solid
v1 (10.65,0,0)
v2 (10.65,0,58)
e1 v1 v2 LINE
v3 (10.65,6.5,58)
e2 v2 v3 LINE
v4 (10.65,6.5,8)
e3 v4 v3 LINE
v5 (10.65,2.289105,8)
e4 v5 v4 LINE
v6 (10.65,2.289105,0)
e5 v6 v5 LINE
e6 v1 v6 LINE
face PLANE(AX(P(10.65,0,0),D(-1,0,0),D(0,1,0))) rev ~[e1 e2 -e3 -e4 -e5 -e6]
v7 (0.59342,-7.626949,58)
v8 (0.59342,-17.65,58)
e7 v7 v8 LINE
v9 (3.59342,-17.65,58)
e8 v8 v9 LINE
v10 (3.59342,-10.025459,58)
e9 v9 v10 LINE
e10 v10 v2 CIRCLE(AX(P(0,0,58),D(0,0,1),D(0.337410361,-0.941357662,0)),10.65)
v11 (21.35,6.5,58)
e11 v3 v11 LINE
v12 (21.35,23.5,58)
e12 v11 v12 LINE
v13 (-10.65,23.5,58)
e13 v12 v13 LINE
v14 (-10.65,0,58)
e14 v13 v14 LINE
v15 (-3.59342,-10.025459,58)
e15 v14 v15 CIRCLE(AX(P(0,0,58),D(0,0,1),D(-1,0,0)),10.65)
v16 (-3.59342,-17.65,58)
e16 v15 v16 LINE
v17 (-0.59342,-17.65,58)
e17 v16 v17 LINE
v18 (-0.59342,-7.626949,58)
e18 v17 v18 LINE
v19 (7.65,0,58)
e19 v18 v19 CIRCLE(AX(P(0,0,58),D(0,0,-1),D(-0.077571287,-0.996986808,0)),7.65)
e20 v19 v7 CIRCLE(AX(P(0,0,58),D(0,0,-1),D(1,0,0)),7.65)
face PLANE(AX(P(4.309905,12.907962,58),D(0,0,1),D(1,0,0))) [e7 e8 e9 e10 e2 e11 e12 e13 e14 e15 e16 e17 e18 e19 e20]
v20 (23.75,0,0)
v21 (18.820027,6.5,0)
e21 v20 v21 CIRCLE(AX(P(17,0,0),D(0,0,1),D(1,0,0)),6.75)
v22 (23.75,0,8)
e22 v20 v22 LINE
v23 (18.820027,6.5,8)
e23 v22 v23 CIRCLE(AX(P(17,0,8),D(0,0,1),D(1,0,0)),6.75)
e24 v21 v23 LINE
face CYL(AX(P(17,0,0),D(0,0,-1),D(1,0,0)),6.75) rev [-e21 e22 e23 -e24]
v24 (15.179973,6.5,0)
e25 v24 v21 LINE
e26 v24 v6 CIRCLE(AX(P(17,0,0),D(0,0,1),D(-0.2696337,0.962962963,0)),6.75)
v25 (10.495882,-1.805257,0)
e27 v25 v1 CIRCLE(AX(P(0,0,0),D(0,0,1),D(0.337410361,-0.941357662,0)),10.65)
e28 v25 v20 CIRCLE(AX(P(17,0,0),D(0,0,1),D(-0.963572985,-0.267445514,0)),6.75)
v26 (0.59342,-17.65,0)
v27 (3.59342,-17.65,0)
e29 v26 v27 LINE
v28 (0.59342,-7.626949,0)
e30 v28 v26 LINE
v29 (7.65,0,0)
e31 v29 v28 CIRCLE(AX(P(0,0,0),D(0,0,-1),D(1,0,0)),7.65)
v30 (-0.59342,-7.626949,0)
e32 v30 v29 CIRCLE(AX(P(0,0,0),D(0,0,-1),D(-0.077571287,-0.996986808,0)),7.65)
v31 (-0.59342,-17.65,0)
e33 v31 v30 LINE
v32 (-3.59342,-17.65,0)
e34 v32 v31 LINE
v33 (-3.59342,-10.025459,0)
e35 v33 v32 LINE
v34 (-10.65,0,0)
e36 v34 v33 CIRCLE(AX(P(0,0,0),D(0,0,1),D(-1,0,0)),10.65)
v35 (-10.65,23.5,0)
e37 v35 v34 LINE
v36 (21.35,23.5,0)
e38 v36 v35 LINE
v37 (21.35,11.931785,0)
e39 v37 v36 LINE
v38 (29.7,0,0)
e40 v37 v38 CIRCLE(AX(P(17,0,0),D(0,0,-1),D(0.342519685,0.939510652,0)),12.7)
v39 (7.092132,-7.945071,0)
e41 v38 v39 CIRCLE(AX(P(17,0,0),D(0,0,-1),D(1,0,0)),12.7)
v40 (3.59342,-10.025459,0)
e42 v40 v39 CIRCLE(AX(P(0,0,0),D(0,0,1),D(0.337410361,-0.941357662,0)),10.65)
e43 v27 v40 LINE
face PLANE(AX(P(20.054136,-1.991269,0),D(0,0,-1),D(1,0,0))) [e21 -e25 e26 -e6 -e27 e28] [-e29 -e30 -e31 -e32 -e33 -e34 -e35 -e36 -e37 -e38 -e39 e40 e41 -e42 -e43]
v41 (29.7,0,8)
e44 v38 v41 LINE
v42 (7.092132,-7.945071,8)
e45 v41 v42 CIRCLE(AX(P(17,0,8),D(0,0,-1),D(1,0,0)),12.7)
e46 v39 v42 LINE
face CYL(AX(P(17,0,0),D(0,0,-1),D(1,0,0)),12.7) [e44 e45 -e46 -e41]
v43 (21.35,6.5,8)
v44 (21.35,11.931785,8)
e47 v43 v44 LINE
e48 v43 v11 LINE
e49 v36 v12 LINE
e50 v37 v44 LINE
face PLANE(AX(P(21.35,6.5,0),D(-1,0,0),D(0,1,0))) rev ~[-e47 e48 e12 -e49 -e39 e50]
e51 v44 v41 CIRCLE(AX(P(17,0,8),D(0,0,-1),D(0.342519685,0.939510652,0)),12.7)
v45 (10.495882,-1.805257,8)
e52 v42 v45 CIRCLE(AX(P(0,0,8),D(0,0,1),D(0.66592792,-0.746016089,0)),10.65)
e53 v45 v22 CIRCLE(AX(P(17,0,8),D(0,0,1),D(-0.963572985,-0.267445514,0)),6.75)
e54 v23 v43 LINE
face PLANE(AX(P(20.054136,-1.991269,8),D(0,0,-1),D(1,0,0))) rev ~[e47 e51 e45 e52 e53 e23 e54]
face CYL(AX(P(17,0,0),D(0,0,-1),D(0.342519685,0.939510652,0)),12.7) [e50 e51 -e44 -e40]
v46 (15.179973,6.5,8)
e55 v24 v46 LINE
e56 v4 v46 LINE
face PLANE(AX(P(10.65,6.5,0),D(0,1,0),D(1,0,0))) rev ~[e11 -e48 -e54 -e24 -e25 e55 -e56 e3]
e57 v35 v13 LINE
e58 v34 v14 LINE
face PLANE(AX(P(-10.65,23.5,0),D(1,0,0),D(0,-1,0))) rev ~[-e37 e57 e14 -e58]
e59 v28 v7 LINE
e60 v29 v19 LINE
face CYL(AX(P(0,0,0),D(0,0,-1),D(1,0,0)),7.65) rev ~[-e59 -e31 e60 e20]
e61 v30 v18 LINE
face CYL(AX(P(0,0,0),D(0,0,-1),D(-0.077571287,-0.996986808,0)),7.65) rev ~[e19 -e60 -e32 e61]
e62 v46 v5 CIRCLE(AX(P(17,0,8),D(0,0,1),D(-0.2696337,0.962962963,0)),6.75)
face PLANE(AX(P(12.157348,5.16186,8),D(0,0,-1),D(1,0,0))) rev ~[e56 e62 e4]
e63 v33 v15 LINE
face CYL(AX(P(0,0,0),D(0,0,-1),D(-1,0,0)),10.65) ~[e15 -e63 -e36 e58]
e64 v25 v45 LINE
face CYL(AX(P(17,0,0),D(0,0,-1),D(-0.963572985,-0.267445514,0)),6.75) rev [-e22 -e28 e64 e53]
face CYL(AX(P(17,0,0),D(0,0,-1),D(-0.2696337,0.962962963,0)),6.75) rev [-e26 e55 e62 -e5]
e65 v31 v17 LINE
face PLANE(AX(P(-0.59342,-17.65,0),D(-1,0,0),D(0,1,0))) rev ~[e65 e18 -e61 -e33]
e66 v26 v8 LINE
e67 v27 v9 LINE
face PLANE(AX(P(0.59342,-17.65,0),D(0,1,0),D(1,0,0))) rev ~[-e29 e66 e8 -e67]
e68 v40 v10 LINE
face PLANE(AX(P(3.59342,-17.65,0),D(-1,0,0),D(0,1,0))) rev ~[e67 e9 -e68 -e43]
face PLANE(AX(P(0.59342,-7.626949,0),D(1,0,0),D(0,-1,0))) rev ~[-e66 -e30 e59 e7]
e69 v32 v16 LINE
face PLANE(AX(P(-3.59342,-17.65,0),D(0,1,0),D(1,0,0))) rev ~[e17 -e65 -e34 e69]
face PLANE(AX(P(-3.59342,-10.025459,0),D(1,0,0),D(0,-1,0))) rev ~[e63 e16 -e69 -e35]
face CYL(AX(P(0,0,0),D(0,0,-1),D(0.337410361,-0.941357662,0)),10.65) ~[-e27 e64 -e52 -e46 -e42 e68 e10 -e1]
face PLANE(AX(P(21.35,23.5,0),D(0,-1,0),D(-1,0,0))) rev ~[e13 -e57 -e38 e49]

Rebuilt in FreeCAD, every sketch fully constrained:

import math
import FreeCAD as App
import Part
import Sketcher

V = App.Vector
Q = App.Units.Quantity

doc = App.newDocument("Part")
params = doc.addObject("Spreadsheet::Sheet", "Params")
for row, (alias, value) in enumerate([
    ("sketch1_width", "3 mm"),
    ("sketch1_width2", "32 mm"),
    ("sketch1_height", "17 mm"),
    ("sketch1_radius", "10.65 mm"),
    ("sketch1_radius2", "7.65 mm"),
    ("pad1_length", "58 mm"),
    ("sketch2_radius", "12.7 mm"),
    ("sketch2_radius2", "10.65 mm"),
    ("sketch2_radius3", "6.75 mm"),
    ("pad2_length", "8 mm"),
], start=1):
    params.set(f"A{row}", alias)
    params.set(f"B{row}", "=" + value)
    params.setAlias(f"B{row}", alias)

body = doc.addObject("PartDesign::Body", "Body")

sketch1 = body.newObject("Sketcher::SketchObject", "Sketch")
sketch1.AttachmentSupport = (doc.getObject("XY_Plane"), [""])
sketch1.MapMode = "FlatFace"
sketch1.addGeometry([
    Part.LineSegment(V(-10.7, 23.5, 0), V(-10.7, 0, 0)),
    Part.ArcOfCircle(Part.Circle(V(0, 0, 0), V(0, 0, 1), 10.7), math.radians(180), math.radians(250)),
    Part.LineSegment(V(-3.6, -10, 0), V(-3.6, -17.6, 0)),
    Part.LineSegment(V(-3.6, -17.6, 0), V(-0.6, -17.6, 0)),
    Part.LineSegment(V(-0.6, -17.6, 0), V(-0.6, -7.6, 0)),
    Part.ArcOfCircle(Part.Circle(V(0, 0, 0), V(0, 0, 1), 7.7), math.radians(0), math.radians(266)),
    Part.ArcOfCircle(Part.Circle(V(0, 0, 0), V(0, 0, 1), 7.7), math.radians(-86), math.radians(0)),
    Part.LineSegment(V(0.6, -7.6, 0), V(0.6, -17.6, 0)),
    Part.LineSegment(V(0.6, -17.6, 0), V(3.6, -17.6, 0)),
    Part.LineSegment(V(3.6, -17.6, 0), V(3.6, -10, 0)),
    Part.ArcOfCircle(Part.Circle(V(0, 0, 0), V(0, 0, 1), 10.7), math.radians(-70), math.radians(0)),
    Part.LineSegment(V(10.7, 0, 0), V(10.7, 6.5, 0)),
    Part.LineSegment(V(10.7, 6.5, 0), V(21.4, 6.5, 0)),
    Part.LineSegment(V(21.4, 6.5, 0), V(21.4, 23.5, 0)),
    Part.LineSegment(V(21.4, 23.5, 0), V(-10.7, 23.5, 0)),
], False)
sketch1.addConstraint([
    Sketcher.Constraint("Tangent", 0, 2, 1, 1),
    Sketcher.Constraint("Coincident", 1, 2, 2, 1),
    Sketcher.Constraint("Coincident", 2, 2, 3, 1),
    Sketcher.Constraint("Coincident", 3, 2, 4, 1),
    Sketcher.Constraint("Coincident", 4, 2, 5, 2),
    Sketcher.Constraint("Tangent", 5, 1, 6, 2),
    Sketcher.Constraint("Coincident", 6, 1, 7, 1),
    Sketcher.Constraint("Coincident", 7, 2, 8, 1),
    Sketcher.Constraint("Coincident", 8, 2, 9, 1),
    Sketcher.Constraint("Coincident", 9, 2, 10, 1),
    Sketcher.Constraint("Tangent", 10, 2, 11, 1),
    Sketcher.Constraint("Coincident", 11, 2, 12, 1),
    Sketcher.Constraint("Coincident", 12, 2, 13, 1),
    Sketcher.Constraint("Coincident", 13, 2, 14, 1),
    Sketcher.Constraint("Coincident", 14, 2, 0, 1),
    Sketcher.Constraint("Vertical", 0),
    Sketcher.Constraint("Vertical", 2),
    Sketcher.Constraint("Horizontal", 3),
    Sketcher.Constraint("Vertical", 4),
    Sketcher.Constraint("Vertical", 7),
    Sketcher.Constraint("Horizontal", 8),
    Sketcher.Constraint("Vertical", 9),
    Sketcher.Constraint("Vertical", 11),
    Sketcher.Constraint("Horizontal", 12),
    Sketcher.Constraint("Vertical", 13),
    Sketcher.Constraint("Horizontal", 14),
    Sketcher.Constraint("Coincident", 1, 3, -1, 1),
    Sketcher.Constraint("Coincident", 5, 3, -1, 1),
    Sketcher.Constraint("Coincident", 10, 3, -1, 1),
    Sketcher.Constraint("Equal", 5, 6),
    Sketcher.Constraint("Equal", 1, 10),
    Sketcher.Constraint("Symmetric", 3, 2, 7, 2, -2),
    Sketcher.Constraint("PointOnObject", 5, 1, -1),
    Sketcher.Constraint("Horizontal", 1, 2, 9, 2),
    Sketcher.Constraint("DistanceX", 3, 1, 3, 2, Q("3 mm")),
    Sketcher.Constraint("DistanceX", 14, 2, 14, 1, Q("32 mm")),
    Sketcher.Constraint("DistanceY", 13, 1, 13, 2, Q("17 mm")),
    Sketcher.Constraint("Radius", 1, Q("10.65 mm")),
    Sketcher.Constraint("Radius", 5, Q("7.65 mm")),
    Sketcher.Constraint("DistanceY", 0, 2, 0, 1, Q("23.5 mm")),
    Sketcher.Constraint("DistanceY", 2, 2, -1, 1, Q("17.65 mm")),
    Sketcher.Constraint("DistanceY", 2, 2, 2, 1, Q("7.624541 mm")),
])
sketch1.setExpression("Constraints[34]", "Params.sketch1_width")
sketch1.setExpression("Constraints[35]", "Params.sketch1_width2")
sketch1.setExpression("Constraints[36]", "Params.sketch1_height")
sketch1.setExpression("Constraints[37]", "Params.sketch1_radius")
sketch1.setExpression("Constraints[38]", "Params.sketch1_radius2")
pad1 = body.newObject("PartDesign::Pad", "Pad")
pad1.Profile = sketch1
pad1.setExpression("Length", "Params.pad1_length")

sketch2 = body.newObject("Sketcher::SketchObject", "Sketch001")
sketch2.AttachmentSupport = (doc.getObject("XY_Plane"), [""])
sketch2.MapMode = "FlatFace"
sketch2.addGeometry([
    Part.ArcOfCircle(Part.Circle(V(17, 0, 0), V(0, 0, 1), 12.7), math.radians(0), math.radians(70)),
    Part.ArcOfCircle(Part.Circle(V(17, 0, 0), V(0, 0, 1), 12.7), math.radians(-141), math.radians(0)),
    Part.ArcOfCircle(Part.Circle(V(0, 0, 0), V(0, 0, 1), 10.7), math.radians(-48), math.radians(-10)),
    Part.ArcOfCircle(Part.Circle(V(17, 0, 0), V(0, 0, 1), 6.8), math.radians(-164), math.radians(0)),
    Part.ArcOfCircle(Part.Circle(V(17, 0, 0), V(0, 0, 1), 6.8), math.radians(0), math.radians(74)),
    Part.LineSegment(V(18.8, 6.5, 0), V(21.4, 6.5, 0)),
    Part.LineSegment(V(21.4, 6.5, 0), V(21.4, 11.9, 0)),
    Part.ArcOfCircle(Part.Circle(V(17, 0, 0), V(0, 0, 1), 6.8), math.radians(106), math.radians(160)),
    Part.LineSegment(V(10.7, 2.3, 0), V(10.7, 6.5, 0)),
    Part.LineSegment(V(10.7, 6.5, 0), V(15.2, 6.5, 0)),
], False)
sketch2.addConstraint([
    Sketcher.Constraint("Tangent", 0, 1, 1, 2),
    Sketcher.Constraint("Coincident", 1, 1, 2, 1),
    Sketcher.Constraint("Coincident", 2, 2, 3, 1),
    Sketcher.Constraint("Tangent", 3, 2, 4, 1),
    Sketcher.Constraint("Coincident", 4, 2, 5, 1),
    Sketcher.Constraint("Coincident", 5, 2, 6, 1),
    Sketcher.Constraint("Coincident", 6, 2, 0, 2),
    Sketcher.Constraint("Coincident", 7, 2, 8, 1),
    Sketcher.Constraint("Coincident", 8, 2, 9, 1),
    Sketcher.Constraint("Coincident", 9, 2, 7, 1),
    Sketcher.Constraint("Horizontal", 5),
    Sketcher.Constraint("Vertical", 6),
    Sketcher.Constraint("Vertical", 8),
    Sketcher.Constraint("Horizontal", 9),
    Sketcher.Constraint("Coincident", 2, 3, -1, 1),
    Sketcher.Constraint("Coincident", 3, 3, 0, 3),
    Sketcher.Constraint("Coincident", 7, 3, 0, 3),
    Sketcher.Constraint("Equal", 0, 1),
    Sketcher.Constraint("Equal", 3, 4),
    Sketcher.Constraint("Equal", 4, 7),
    Sketcher.Constraint("PointOnObject", 0, 3, -1),
    Sketcher.Constraint("PointOnObject", 0, 1, -1),
    Sketcher.Constraint("PointOnObject", 3, 2, -1),
    Sketcher.Constraint("Horizontal", 5, 2, 8, 2),
    Sketcher.Constraint("Radius", 0, Q("12.7 mm")),
    Sketcher.Constraint("Radius", 2, Q("10.65 mm")),
    Sketcher.Constraint("Radius", 3, Q("6.75 mm")),
    Sketcher.Constraint("DistanceX", -1, 1, 0, 3, Q("17 mm")),
    Sketcher.Constraint("DistanceY", -1, 1, 4, 2, Q("6.5 mm")),
    Sketcher.Constraint("DistanceX", 5, 2, 3, 2, Q("2.4 mm")),
    Sketcher.Constraint("DistanceX", -1, 1, 7, 2, Q("10.65 mm")),
])
sketch2.setExpression("Constraints[24]", "Params.sketch2_radius")
sketch2.setExpression("Constraints[25]", "Params.sketch2_radius2")
sketch2.setExpression("Constraints[26]", "Params.sketch2_radius3")
pad2 = body.newObject("PartDesign::Pad", "Pad001")
pad2.Profile = sketch2
pad2.setExpression("Length", "Params.pad2_length")

doc.recompute()
